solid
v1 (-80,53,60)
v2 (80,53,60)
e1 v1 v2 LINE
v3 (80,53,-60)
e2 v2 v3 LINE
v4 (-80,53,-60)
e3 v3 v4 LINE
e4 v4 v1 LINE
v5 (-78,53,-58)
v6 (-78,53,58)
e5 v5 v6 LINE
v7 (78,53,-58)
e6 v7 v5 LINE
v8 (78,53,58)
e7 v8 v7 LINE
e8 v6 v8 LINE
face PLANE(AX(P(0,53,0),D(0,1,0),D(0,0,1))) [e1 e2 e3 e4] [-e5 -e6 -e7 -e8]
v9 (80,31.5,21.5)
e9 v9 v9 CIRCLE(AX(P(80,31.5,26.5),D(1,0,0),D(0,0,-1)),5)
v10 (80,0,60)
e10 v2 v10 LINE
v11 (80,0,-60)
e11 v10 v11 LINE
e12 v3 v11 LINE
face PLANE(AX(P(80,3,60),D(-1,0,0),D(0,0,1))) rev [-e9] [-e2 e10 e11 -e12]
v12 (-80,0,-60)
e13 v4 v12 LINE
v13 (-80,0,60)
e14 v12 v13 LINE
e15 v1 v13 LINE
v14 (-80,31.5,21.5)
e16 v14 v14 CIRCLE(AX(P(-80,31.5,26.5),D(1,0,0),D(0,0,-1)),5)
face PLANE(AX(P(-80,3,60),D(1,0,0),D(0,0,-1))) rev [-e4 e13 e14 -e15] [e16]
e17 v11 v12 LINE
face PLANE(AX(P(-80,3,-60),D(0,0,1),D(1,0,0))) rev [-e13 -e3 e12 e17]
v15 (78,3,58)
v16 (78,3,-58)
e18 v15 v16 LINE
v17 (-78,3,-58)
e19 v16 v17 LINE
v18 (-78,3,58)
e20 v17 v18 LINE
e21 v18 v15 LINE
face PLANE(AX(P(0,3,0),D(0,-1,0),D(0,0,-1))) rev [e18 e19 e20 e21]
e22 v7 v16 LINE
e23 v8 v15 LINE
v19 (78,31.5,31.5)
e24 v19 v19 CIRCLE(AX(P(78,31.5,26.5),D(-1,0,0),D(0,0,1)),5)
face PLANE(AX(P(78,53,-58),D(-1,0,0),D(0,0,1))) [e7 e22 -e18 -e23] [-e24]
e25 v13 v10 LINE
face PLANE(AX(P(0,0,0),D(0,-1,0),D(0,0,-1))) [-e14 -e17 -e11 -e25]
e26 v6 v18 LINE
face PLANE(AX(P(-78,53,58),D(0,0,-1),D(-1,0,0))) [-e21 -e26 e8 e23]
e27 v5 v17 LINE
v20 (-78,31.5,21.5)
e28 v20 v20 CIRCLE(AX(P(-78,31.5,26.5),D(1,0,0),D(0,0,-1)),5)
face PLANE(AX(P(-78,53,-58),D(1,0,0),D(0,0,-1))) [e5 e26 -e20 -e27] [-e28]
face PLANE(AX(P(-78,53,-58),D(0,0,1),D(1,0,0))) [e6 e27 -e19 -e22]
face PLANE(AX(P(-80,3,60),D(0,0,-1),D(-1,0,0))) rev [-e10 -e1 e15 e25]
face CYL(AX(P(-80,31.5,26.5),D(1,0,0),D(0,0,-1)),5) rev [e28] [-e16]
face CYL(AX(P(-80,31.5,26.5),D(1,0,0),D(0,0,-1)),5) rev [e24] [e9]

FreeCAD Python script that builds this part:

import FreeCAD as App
import Part
import Sketcher

V = App.Vector

doc = App.newDocument("Part")
params = doc.addObject("Spreadsheet::Sheet", "Params")
for row, (alias, value) in enumerate([
    ("sketch1_width", "160 mm"),
    ("sketch1_height", "120 mm"),
    ("pad1_length", "3 mm"),
    ("sketch2_width", "160 mm"),
    ("sketch2_width2", "156 mm"),
    ("sketch2_height", "120 mm"),
    ("sketch2_height2", "116 mm"),
    ("pad2_length", "50 mm"),
    ("sketch3_diameter", "10 mm"),
], start=1):
    params.set(f"A{row}", alias)
    params.set(f"B{row}", "=" + value)
    params.setAlias(f"B{row}", alias)

body = doc.addObject("PartDesign::Body", "Body")

sketch1 = doc.addObject("Sketcher::SketchObject", "Sketch")
body.addObject(sketch1)
sketch1.AttachmentSupport = (doc.XZ_Plane, [""])
sketch1.MapMode = "FlatFace"
sketch1.addGeometry([
    Part.LineSegment(V(-80, -60, 0), V(-80, 60, 0)),
    Part.LineSegment(V(-80, 60, 0), V(80, 60, 0)),
    Part.LineSegment(V(80, 60, 0), V(80, -60, 0)),
    Part.LineSegment(V(80, -60, 0), V(-80, -60, 0)),
], False)
sketch1.addConstraint([
    Sketcher.Constraint("Coincident", 0, 2, 1, 1),
    Sketcher.Constraint("Coincident", 1, 2, 2, 1),
    Sketcher.Constraint("Coincident", 2, 2, 3, 1),
    Sketcher.Constraint("Coincident", 3, 2, 0, 1),
    Sketcher.Constraint("Vertical", 0),
    Sketcher.Constraint("Horizontal", 1),
    Sketcher.Constraint("Vertical", 2),
    Sketcher.Constraint("Horizontal", 3),
    Sketcher.Constraint("Symmetric", 0, 2, 2, 2, -1, 1),
    Sketcher.Constraint("DistanceX", 1, 1, 1, 2, 160.0),
    Sketcher.Constraint("DistanceY", 0, 1, 0, 2, 120.0),
])
sketch1.setExpression("Constraints[9]", "Params.sketch1_width")
sketch1.setExpression("Constraints[10]", "Params.sketch1_height")
pad1 = doc.addObject("PartDesign::Pad", "Pad")
body.addObject(pad1)
pad1.Profile = sketch1
pad1.setExpression("Length", "Params.pad1_length")
pad1.Reversed = True

sketch2 = doc.addObject("Sketcher::SketchObject", "Sketch001")
body.addObject(sketch2)
sketch2.AttachmentSupport = (doc.XZ_Plane, [""])
sketch2.MapMode = "FlatFace"
sketch2.AttachmentOffset = App.Placement(V(0, 0, -3), App.Rotation())
sketch2.addGeometry([
    Part.LineSegment(V(-80, -60, 0), V(-80, 60, 0)),
    Part.LineSegment(V(-80, 60, 0), V(80, 60, 0)),
    Part.LineSegment(V(80, 60, 0), V(80, -60, 0)),
    Part.LineSegment(V(80, -60, 0), V(-80, -60, 0)),
    Part.LineSegment(V(78, 58, 0), V(-78, 58, 0)),
    Part.LineSegment(V(-78, 58, 0), V(-78, -58, 0)),
    Part.LineSegment(V(-78, -58, 0), V(78, -58, 0)),
    Part.LineSegment(V(78, -58, 0), V(78, 58, 0)),
], False)
sketch2.addConstraint([
    Sketcher.Constraint("Coincident", 0, 2, 1, 1),
    Sketcher.Constraint("Coincident", 1, 2, 2, 1),
    Sketcher.Constraint("Coincident", 2, 2, 3, 1),
    Sketcher.Constraint("Coincident", 3, 2, 0, 1),
    Sketcher.Constraint("Coincident", 4, 2, 5, 1),
    Sketcher.Constraint("Coincident", 5, 2, 6, 1),
    Sketcher.Constraint("Coincident", 6, 2, 7, 1),
    Sketcher.Constraint("Coincident", 7, 2, 4, 1),
    Sketcher.Constraint("Vertical", 0),
    Sketcher.Constraint("Horizontal", 1),
    Sketcher.Constraint("Vertical", 2),
    Sketcher.Constraint("Horizontal", 3),
    Sketcher.Constraint("Horizontal", 4),
    Sketcher.Constraint("Vertical", 5),
    Sketcher.Constraint("Horizontal", 6),
    Sketcher.Constraint("Vertical", 7),
    Sketcher.Constraint("Symmetric", 0, 2, 2, 2, -1, 1),
    Sketcher.Constraint("Symmetric", 4, 2, 6, 2, -1, 1),
    Sketcher.Constraint("DistanceX", 1, 1, 1, 2, 160.0),
    Sketcher.Constraint("DistanceX", 4, 2, 4, 1, 156.0),
    Sketcher.Constraint("DistanceY", 0, 1, 0, 2, 120.0),
    Sketcher.Constraint("DistanceY", 5, 2, 5, 1, 116.0),
])
sketch2.setExpression("Constraints[18]", "Params.sketch2_width")
sketch2.setExpression("Constraints[19]", "Params.sketch2_width2")
sketch2.setExpression("Constraints[20]", "Params.sketch2_height")
sketch2.setExpression("Constraints[21]", "Params.sketch2_height2")
pad2 = doc.addObject("PartDesign::Pad", "Pad001")
body.addObject(pad2)
pad2.Profile = sketch2
pad2.setExpression("Length", "Params.pad2_length")
pad2.Reversed = True

sketch3 = doc.addObject("Sketcher::SketchObject", "Sketch002")
body.addObject(sketch3)
sketch3.AttachmentSupport = (doc.YZ_Plane, [""])
sketch3.MapMode = "FlatFace"
sketch3.AttachmentOffset = App.Placement(V(0, 0, 80), App.Rotation())
sketch3.addGeometry(Part.Circle(V(31.5, 26.5, 0), V(0, 0, 1), 5), False)
sketch3.addConstraint([
    Sketcher.Constraint("Diameter", 0, 10.0),
    Sketcher.Constraint("DistanceX", -1, 1, 0, 3, 31.5),
    Sketcher.Constraint("DistanceY", -1, 1, 0, 3, 26.5),
])
sketch3.setExpression("Constraints[0]", "Params.sketch3_diameter")
pocket1 = doc.addObject("PartDesign::Pocket", "Pocket")
body.addObject(pocket1)
pocket1.Profile = sketch3
pocket1.Type = "ThroughAll"

doc.recompute()
